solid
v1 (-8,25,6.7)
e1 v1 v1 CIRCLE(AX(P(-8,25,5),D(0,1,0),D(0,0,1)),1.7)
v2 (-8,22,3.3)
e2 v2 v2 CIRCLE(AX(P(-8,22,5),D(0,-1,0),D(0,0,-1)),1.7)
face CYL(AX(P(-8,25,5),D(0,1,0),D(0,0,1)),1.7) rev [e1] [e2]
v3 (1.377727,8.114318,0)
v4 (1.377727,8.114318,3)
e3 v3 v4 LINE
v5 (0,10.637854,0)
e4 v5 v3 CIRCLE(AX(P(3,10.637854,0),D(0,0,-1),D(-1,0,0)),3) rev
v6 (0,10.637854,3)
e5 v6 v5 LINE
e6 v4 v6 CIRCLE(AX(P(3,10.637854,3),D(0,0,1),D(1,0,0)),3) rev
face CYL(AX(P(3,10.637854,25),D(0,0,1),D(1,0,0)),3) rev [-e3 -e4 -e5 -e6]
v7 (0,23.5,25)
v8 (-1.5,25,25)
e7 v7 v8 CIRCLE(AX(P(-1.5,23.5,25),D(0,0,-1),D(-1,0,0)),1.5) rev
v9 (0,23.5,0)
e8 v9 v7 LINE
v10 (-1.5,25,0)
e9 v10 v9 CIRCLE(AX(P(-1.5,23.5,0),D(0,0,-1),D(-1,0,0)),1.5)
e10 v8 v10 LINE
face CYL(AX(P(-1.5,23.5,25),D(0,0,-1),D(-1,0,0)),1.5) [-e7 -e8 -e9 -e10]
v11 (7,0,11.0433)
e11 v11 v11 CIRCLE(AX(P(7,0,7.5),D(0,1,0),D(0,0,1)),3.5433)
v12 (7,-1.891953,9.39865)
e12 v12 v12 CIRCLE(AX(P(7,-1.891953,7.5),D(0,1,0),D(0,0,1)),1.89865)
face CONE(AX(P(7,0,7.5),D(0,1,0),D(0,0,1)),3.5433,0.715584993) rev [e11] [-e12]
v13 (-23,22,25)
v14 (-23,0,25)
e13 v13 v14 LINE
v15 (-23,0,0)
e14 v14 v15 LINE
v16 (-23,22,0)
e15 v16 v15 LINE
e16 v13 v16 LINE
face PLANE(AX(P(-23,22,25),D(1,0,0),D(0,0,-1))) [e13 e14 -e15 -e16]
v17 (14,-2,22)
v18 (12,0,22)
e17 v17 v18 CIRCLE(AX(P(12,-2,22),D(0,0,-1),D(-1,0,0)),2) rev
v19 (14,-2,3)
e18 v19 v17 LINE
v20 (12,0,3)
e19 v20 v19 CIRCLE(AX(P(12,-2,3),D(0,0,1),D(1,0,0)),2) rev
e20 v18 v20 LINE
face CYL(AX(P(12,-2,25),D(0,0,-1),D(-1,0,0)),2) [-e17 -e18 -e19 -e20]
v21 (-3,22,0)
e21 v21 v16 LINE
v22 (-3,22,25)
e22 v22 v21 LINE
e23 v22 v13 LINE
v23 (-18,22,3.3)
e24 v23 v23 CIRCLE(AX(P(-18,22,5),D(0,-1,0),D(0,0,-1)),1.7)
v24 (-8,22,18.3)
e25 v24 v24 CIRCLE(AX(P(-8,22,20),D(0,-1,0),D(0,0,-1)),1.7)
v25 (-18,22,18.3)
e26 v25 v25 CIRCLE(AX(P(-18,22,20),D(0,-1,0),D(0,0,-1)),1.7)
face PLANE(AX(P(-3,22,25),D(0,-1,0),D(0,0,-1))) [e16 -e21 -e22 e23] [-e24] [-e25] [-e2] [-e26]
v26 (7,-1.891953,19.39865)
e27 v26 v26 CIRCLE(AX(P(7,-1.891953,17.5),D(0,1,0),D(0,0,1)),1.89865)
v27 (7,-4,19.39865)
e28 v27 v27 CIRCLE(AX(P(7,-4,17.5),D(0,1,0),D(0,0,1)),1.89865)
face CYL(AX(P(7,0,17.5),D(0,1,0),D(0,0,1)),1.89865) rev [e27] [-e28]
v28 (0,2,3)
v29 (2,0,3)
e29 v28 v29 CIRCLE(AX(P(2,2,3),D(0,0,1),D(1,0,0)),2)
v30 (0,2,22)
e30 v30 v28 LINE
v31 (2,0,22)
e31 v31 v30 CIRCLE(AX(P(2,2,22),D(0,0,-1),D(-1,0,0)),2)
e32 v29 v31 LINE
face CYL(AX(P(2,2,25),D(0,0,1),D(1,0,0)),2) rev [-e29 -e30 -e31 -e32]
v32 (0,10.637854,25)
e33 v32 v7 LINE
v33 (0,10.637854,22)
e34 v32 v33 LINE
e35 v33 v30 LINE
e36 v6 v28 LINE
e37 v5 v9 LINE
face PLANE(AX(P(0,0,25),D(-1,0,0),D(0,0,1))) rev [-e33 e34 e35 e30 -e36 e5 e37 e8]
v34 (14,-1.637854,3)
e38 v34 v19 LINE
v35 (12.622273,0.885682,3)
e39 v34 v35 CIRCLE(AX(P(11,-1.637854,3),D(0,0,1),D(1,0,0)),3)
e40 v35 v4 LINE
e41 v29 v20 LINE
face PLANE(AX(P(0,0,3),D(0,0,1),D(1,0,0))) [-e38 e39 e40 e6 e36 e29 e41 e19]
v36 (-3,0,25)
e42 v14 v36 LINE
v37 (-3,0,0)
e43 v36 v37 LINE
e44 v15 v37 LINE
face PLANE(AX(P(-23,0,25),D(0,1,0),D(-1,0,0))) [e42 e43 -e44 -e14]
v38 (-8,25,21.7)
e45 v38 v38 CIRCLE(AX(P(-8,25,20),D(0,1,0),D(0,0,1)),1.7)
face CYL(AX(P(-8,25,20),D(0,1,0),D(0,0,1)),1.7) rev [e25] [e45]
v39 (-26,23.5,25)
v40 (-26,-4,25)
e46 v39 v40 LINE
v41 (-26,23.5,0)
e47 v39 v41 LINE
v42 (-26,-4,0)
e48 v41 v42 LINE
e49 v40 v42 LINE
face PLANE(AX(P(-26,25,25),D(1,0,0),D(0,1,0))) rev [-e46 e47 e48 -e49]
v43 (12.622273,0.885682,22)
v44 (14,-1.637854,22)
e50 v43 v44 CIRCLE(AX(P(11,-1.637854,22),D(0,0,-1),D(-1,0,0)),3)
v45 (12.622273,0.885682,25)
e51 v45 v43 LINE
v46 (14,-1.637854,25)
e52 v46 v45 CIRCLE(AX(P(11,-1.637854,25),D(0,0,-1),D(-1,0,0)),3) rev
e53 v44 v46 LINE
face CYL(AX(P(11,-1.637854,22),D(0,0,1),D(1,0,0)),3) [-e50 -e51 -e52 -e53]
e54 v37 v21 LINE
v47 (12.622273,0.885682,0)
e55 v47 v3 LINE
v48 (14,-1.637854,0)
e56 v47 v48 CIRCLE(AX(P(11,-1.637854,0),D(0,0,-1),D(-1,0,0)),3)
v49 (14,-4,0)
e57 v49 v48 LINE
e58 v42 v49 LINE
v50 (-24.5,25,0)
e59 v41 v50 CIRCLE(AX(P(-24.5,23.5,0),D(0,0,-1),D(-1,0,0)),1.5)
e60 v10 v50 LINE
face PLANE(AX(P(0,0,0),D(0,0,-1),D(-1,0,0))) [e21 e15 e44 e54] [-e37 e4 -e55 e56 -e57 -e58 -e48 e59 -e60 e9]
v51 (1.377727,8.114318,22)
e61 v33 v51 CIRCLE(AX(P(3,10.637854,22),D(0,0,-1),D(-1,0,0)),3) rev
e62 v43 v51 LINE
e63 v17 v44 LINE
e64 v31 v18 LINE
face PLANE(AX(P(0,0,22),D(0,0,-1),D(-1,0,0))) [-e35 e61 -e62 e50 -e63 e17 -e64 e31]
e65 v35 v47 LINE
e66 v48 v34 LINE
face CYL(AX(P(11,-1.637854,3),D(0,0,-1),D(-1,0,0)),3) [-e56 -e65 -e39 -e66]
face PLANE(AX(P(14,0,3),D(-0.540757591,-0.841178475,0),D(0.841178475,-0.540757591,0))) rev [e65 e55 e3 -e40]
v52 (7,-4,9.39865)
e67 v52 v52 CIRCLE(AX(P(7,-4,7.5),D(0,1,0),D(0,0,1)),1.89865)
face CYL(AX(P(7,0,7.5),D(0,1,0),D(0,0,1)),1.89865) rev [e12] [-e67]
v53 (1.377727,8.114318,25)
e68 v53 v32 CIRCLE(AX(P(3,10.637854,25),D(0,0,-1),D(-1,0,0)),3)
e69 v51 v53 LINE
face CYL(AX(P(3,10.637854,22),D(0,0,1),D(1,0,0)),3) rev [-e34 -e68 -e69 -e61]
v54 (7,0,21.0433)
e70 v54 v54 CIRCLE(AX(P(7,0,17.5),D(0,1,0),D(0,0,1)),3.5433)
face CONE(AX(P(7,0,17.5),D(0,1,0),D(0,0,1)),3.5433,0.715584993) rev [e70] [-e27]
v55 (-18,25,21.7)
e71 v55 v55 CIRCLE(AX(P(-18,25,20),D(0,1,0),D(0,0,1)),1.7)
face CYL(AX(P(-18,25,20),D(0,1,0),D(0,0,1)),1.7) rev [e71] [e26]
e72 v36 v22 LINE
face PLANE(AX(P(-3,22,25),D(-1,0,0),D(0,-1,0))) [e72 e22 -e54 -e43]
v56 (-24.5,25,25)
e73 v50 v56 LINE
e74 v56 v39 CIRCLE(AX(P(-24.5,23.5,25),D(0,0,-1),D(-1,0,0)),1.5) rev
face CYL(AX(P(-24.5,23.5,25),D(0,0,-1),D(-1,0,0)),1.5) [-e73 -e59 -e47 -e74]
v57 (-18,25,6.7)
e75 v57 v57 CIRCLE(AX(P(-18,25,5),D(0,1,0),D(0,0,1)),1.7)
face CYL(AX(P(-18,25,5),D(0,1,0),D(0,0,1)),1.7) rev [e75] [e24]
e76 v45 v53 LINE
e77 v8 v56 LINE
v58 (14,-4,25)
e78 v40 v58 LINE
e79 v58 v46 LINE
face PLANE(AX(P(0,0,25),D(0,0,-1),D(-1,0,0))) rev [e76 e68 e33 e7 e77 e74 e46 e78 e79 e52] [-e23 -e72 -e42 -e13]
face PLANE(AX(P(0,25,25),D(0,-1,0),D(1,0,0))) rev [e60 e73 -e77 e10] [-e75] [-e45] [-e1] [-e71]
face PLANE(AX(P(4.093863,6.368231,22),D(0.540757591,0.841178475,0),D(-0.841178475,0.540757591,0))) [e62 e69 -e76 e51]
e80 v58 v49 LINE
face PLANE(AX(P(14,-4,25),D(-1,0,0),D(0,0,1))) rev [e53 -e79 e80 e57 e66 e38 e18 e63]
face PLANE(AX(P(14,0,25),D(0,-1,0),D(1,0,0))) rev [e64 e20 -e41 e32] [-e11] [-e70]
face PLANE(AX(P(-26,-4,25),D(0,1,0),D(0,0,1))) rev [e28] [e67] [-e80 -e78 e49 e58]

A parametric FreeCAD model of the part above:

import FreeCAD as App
import Part
import Sketcher
Q = App.Units.Quantity


def edges_at(feature, points):
    """Names of the edges that pass closest to the given points."""
    edges = feature.Shape.Edges
    near = lambda p: min(range(len(edges)), key=lambda i: edges[i].distToShape(Part.Vertex(*p))[0])
    return sorted({f"Edge{near(p) + 1}" for p in points})


def add_polygon(sketch, points):
    """Adds a closed chain of lines whose ends are joined by coincident constraints."""
    first, n = sketch.GeometryCount, len(points)
    for a, b in zip(points, points[1:] + points[:1]):
        sketch.addGeometry(Part.LineSegment(App.Vector(*a, 0), App.Vector(*b, 0)), False)
    for i in range(n):
        sketch.addConstraint(Sketcher.Constraint("Coincident", first + i, 2, first + (i + 1) % n, 1))

doc = App.newDocument("Part")
body = doc.addObject("PartDesign::Body", "Body")

# Sketch on XY plane
sketch1 = body.newObject("Sketcher::SketchObject", "Sketch")
sketch1.AttachmentSupport = (doc.getObject("XY_Plane"), [""])
sketch1.MapMode = "FlatFace"
add_polygon(sketch1, [(0, 0), (0, 25), (-26, 25), (-26, -4), (14, -4), (14, 0)])  # lines 0-5
add_polygon(sketch1, [(-3, 0), (-23, 0), (-23, 22), (-3, 22)])  # lines 6-9
sketch1.addConstraint(Sketcher.Constraint("Vertical", 0))
sketch1.addConstraint(Sketcher.Constraint("Horizontal", 1))
sketch1.addConstraint(Sketcher.Constraint("Vertical", 2))
sketch1.addConstraint(Sketcher.Constraint("Horizontal", 3))
sketch1.addConstraint(Sketcher.Constraint("Vertical", 4))
sketch1.addConstraint(Sketcher.Constraint("Horizontal", 5))
sketch1.addConstraint(Sketcher.Constraint("Horizontal", 6))
sketch1.addConstraint(Sketcher.Constraint("Vertical", 7))
sketch1.addConstraint(Sketcher.Constraint("Horizontal", 8))
sketch1.addConstraint(Sketcher.Constraint("Vertical", 9))
sketch1.addConstraint(Sketcher.Constraint("Coincident", 5, 2, -1, 1))
sketch1.addConstraint(Sketcher.Constraint("PointOnObject", 6, 2, -1))
sketch1.addConstraint(Sketcher.Constraint("DistanceX", 1, 2, 1, 1, Q("26 mm")))
sketch1.addConstraint(Sketcher.Constraint("DistanceX", 3, 1, 3, 2, Q("40 mm")))
sketch1.addConstraint(Sketcher.Constraint("DistanceX", 6, 2, 6, 1, Q("20 mm")))
sketch1.addConstraint(Sketcher.Constraint("DistanceY", 0, 1, 0, 2, Q("25 mm")))
sketch1.addConstraint(Sketcher.Constraint("DistanceY", 2, 2, 2, 1, Q("29 mm")))
sketch1.addConstraint(Sketcher.Constraint("DistanceY", 7, 1, 7, 2, Q("22 mm")))
sketch1.addConstraint(Sketcher.Constraint("DistanceX", 6, 2, -1, 1, Q("23 mm")))
pad1 = body.newObject("PartDesign::Pad", "Pad")
pad1.Profile = sketch1
pad1.Length = 25

# Sketch on XY plane
sketch2 = body.newObject("Sketcher::SketchObject", "Sketch001")
sketch2.AttachmentSupport = (doc.getObject("XY_Plane"), [""])
sketch2.MapMode = "FlatFace"
add_polygon(sketch2, [(0, 0), (14, 0), (0, 9)])  # lines 0-2
sketch2.addConstraint(Sketcher.Constraint("Horizontal", 0))
sketch2.addConstraint(Sketcher.Constraint("Vertical", 2))
sketch2.addConstraint(Sketcher.Constraint("Coincident", 2, 2, -1, 1))
sketch2.addConstraint(Sketcher.Constraint("DistanceX", 0, 1, 0, 2, Q("14 mm")))
sketch2.addConstraint(Sketcher.Constraint("DistanceY", 2, 2, 2, 1, Q("9 mm")))
pad2 = body.newObject("PartDesign::Pad", "Pad001")
pad2.Profile = sketch2
pad2.Length = 3

# Sketch on XY plane
sketch3 = body.newObject("Sketcher::SketchObject", "Sketch002")
sketch3.AttachmentSupport = (doc.getObject("XY_Plane"), [""])
sketch3.MapMode = "FlatFace"
sketch3.AttachmentOffset = App.Placement(App.Vector(0, 0, 22), App.Rotation())
add_polygon(sketch3, [(0, 0), (14, 0), (0, 9)])  # lines 0-2
sketch3.addConstraint(Sketcher.Constraint("Horizontal", 0))
sketch3.addConstraint(Sketcher.Constraint("Vertical", 2))
sketch3.addConstraint(Sketcher.Constraint("Coincident", 2, 2, -1, 1))
sketch3.addConstraint(Sketcher.Constraint("DistanceX", 0, 1, 0, 2, Q("14 mm")))
sketch3.addConstraint(Sketcher.Constraint("DistanceY", 2, 2, 2, 1, Q("9 mm")))
pad3 = body.newObject("PartDesign::Pad", "Pad002")
pad3.Profile = sketch3
pad3.Length = 3

# Sketch on XZ plane
sketch4 = body.newObject("Sketcher::SketchObject", "Sketch003")
sketch4.AttachmentSupport = (doc.getObject("XZ_Plane"), [""])
sketch4.MapMode = "FlatFace"
sketch4.AttachmentOffset = App.Placement(App.Vector(0, 0, -25), App.Rotation())
sketch4.addGeometry(Part.Circle(App.Vector(-8, 5, 0), App.Vector(0, 0, 1), 1.7), False)
sketch4.addGeometry(Part.Circle(App.Vector(-8, 20, 0), App.Vector(0, 0, 1), 1.7), False)
sketch4.addGeometry(Part.Circle(App.Vector(-18, 20, 0), App.Vector(0, 0, 1), 1.7), False)
sketch4.addGeometry(Part.Circle(App.Vector(-18, 5, 0), App.Vector(0, 0, 1), 1.7), False)
sketch4.addConstraint(Sketcher.Constraint("Equal", 0, 1))
sketch4.addConstraint(Sketcher.Constraint("Equal", 1, 2))
sketch4.addConstraint(Sketcher.Constraint("Equal", 2, 3))
sketch4.addConstraint(Sketcher.Constraint("Horizontal", 1, 3, 2, 3))
sketch4.addConstraint(Sketcher.Constraint("Horizontal", 0, 3, 3, 3))
sketch4.addConstraint(Sketcher.Constraint("Vertical", 0, 3, 1, 3))
sketch4.addConstraint(Sketcher.Constraint("Vertical", 2, 3, 3, 3))
sketch4.addConstraint(Sketcher.Constraint("Diameter", 0, Q("3.4 mm")))
sketch4.addConstraint(Sketcher.Constraint("DistanceX", 0, 3, -1, 1, Q("8 mm")))
sketch4.addConstraint(Sketcher.Constraint("DistanceY", -1, 1, 0, 3, Q("5 mm")))
sketch4.addConstraint(Sketcher.Constraint("DistanceY", -1, 1, 1, 3, Q("20 mm")))
sketch4.addConstraint(Sketcher.Constraint("DistanceX", 2, 3, -1, 1, Q("18 mm")))
doc.recompute()
hole = body.newObject("PartDesign::Hole", "Hole")
hole.Profile = sketch4
hole.ThreadType = "None"
hole.Diameter = 3.4
hole.DepthType = "Dimension"
hole.Depth = 3
hole.DrillPoint = "Flat"
hole.Reversed = True

# Sketch on YZ plane
sketch5 = body.newObject("Sketcher::SketchObject", "Sketch004")
sketch5.AttachmentSupport = (doc.getObject("YZ_Plane"), [""])
sketch5.MapMode = "FlatFace"
sketch5.AttachmentOffset = App.Placement(App.Vector(0, 0, 7), App.Rotation())
add_polygon(sketch5, [(-4, 17.5), (0, 17.5), (0, 21), (-1.9, 19.4), (-4, 19.4)])  # lines 0-4
sketch5.addGeometry(Part.LineSegment(App.Vector(0, 17.5, 0), App.Vector(-4, 17.5, 0)), True)  # axis
sketch5.addConstraint(Sketcher.Constraint("Horizontal", 0))
sketch5.addConstraint(Sketcher.Constraint("Vertical", 1))
sketch5.addConstraint(Sketcher.Constraint("Horizontal", 3))
sketch5.addConstraint(Sketcher.Constraint("Vertical", 4))
sketch5.addConstraint(Sketcher.Constraint("Horizontal", 5))
sketch5.addConstraint(Sketcher.Constraint("Coincident", 5, 1, 0, 2))
sketch5.addConstraint(Sketcher.Constraint("PointOnObject", 0, 2, -2))
sketch5.addConstraint(Sketcher.Constraint("Vertical", 3, 2, 5, 2))
sketch5.addConstraint(Sketcher.Constraint("DistanceX", 0, 1, 0, 2, Q("4 mm")))
sketch5.addConstraint(Sketcher.Constraint("Angle", 2, Q("-139 deg")))
sketch5.addConstraint(Sketcher.Constraint("DistanceY", -1, 1, 0, 2, Q("17.5 mm")))
sketch5.addConstraint(Sketcher.Constraint("DistanceY", 1, 1, 1, 2, Q("3.5433 mm")))
sketch5.addConstraint(Sketcher.Constraint("DistanceY", 4, 2, 4, 1, Q("1.89865 mm")))
groove = body.newObject("PartDesign::Groove", "Groove")
groove.Profile = sketch5
groove.ReferenceAxis = (sketch5, ["Axis0"])
groove.Angle = 360
doc.recompute()

linearpattern = body.newObject("PartDesign::LinearPattern", "LinearPattern")
linearpattern.Originals = [groove]
linearpattern.Direction = (doc.getObject("Z_Axis"), [""])
linearpattern.Mode = "offset"
linearpattern.Offset = 10
linearpattern.Occurrences = 2
linearpattern.Reversed = True
body.Tip = linearpattern
doc.recompute()

fillet = body.newObject("PartDesign::Fillet", "Fillet")
fillet.Base = (linearpattern, edges_at(linearpattern, [(0, 9, 1.5), (0, 9, 23.5)]))
fillet.Radius = 3
doc.recompute()

fillet2 = body.newObject("PartDesign::Fillet", "Fillet001")
fillet2.Base = (fillet, edges_at(fillet, [(14, 0, 12.5), (0, 0, 12.5)]))
fillet2.Radius = 2
doc.recompute()

fillet3 = body.newObject("PartDesign::Fillet", "Fillet002")
fillet3.Base = (fillet2, edges_at(fillet2, [(14, 0, 23.5), (14, 0, 1.5)]))
fillet3.Radius = 3
doc.recompute()

fillet4 = body.newObject("PartDesign::Fillet", "Fillet003")
fillet4.Base = (fillet3, edges_at(fillet3, [(-26, 25, 12.5), (0, 25, 12.5)]))
fillet4.Radius = 1.5

doc.recompute()
